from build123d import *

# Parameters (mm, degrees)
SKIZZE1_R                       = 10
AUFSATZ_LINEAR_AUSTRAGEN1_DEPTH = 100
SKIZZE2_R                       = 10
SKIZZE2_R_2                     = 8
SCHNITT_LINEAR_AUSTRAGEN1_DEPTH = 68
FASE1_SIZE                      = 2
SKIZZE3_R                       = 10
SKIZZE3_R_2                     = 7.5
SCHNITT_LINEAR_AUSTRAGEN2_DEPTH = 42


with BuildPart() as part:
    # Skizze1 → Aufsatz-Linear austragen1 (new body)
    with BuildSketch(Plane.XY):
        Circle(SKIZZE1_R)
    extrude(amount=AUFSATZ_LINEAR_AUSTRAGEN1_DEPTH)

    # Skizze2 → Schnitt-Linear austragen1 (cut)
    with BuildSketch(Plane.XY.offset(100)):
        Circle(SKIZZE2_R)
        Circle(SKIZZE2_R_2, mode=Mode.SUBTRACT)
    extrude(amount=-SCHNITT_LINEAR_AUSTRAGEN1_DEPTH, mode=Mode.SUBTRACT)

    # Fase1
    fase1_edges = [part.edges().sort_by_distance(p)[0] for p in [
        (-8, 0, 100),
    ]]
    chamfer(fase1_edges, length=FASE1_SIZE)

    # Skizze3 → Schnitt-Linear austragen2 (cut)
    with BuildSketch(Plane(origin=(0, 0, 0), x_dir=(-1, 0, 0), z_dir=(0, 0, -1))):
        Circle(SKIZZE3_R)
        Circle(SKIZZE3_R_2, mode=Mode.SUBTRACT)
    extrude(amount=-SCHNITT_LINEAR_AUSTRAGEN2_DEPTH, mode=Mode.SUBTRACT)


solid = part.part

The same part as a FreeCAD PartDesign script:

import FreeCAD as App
import Part
import Sketcher

V = App.Vector


def edges_at(feature, points):
    """Names of the edges that pass closest to the given points."""
    edges = feature.Shape.Edges
    near = lambda p: min(range(len(edges)), key=lambda i: edges[i].distToShape(Part.Vertex(*p))[0])
    return sorted({f"Edge{near(p) + 1}" for p in points})

doc = App.newDocument("Part")
params = doc.addObject("Spreadsheet::Sheet", "Params")
for row, (alias, value) in enumerate([
    ("sketch1_diameter", "20 mm"),
    ("pad1_length", "100 mm"),
    ("sketch2_diameter", "20 mm"),
    ("sketch2_diameter2", "16 mm"),
    ("pocket1_length", "68 mm"),
    ("chamfer_size", "2 mm"),
    ("sketch3_diameter", "20 mm"),
    ("sketch3_diameter2", "15 mm"),
    ("pocket2_length", "42 mm"),
], start=1):
    params.set(f"A{row}", alias)
    params.set(f"B{row}", "=" + value)
    params.setAlias(f"B{row}", alias)

body = doc.addObject("PartDesign::Body", "Body")

sketch1 = body.newObject("Sketcher::SketchObject", "Sketch")
sketch1.AttachmentSupport = (doc.getObject("XY_Plane"), [""])
sketch1.MapMode = "FlatFace"
sketch1.addGeometry(Part.Circle(V(0, 0, 0), V(0, 0, 1), 10), False)
sketch1.addConstraint(Sketcher.Constraint("Coincident", 0, 3, -1, 1))
sketch1.addConstraint(Sketcher.Constraint("Diameter", 0, 20.0))
sketch1.setExpression("Constraints[1]", "Params.sketch1_diameter")
pad1 = body.newObject("PartDesign::Pad", "Pad")
pad1.Profile = sketch1
pad1.setExpression("Length", "Params.pad1_length")

sketch2 = body.newObject("Sketcher::SketchObject", "Sketch001")
sketch2.AttachmentSupport = (doc.getObject("XY_Plane"), [""])
sketch2.MapMode = "FlatFace"
sketch2.AttachmentOffset = App.Placement(V(0, 0, 100), App.Rotation())
sketch2.addGeometry(Part.Circle(V(0, 0, 0), V(0, 0, 1), 10), False)
sketch2.addGeometry(Part.Circle(V(0, 0, 0), V(0, 0, 1), 8), False)
sketch2.addConstraint(Sketcher.Constraint("Coincident", 0, 3, -1, 1))
sketch2.addConstraint(Sketcher.Constraint("Coincident", 1, 3, -1, 1))
sketch2.addConstraint(Sketcher.Constraint("Diameter", 0, 20.0))
sketch2.addConstraint(Sketcher.Constraint("Diameter", 1, 16.0))
sketch2.setExpression("Constraints[2]", "Params.sketch2_diameter")
sketch2.setExpression("Constraints[3]", "Params.sketch2_diameter2")
pocket1 = body.newObject("PartDesign::Pocket", "Pocket")
pocket1.Profile = sketch2
pocket1.setExpression("Length", "Params.pocket1_length")
doc.recompute()

chamfer = body.newObject("PartDesign::Chamfer", "Chamfer")
chamfer.Base = (pocket1, edges_at(pocket1, [(-8, 0, 100)]))
chamfer.setExpression("Size", "Params.chamfer_size")

sketch3 = body.newObject("Sketcher::SketchObject", "Sketch002")
sketch3.AttachmentSupport = (doc.getObject("XY_Plane"), [""])
sketch3.MapMode = "FlatFace"
sketch3.addGeometry(Part.Circle(V(0, 0, 0), V(0, 0, 1), 10), False)
sketch3.addGeometry(Part.Circle(V(0, 0, 0), V(0, 0, 1), 8), False)
sketch3.addConstraint(Sketcher.Constraint("Coincident", 0, 3, -1, 1))
sketch3.addConstraint(Sketcher.Constraint("Coincident", 1, 3, -1, 1))
sketch3.addConstraint(Sketcher.Constraint("Diameter", 0, 20.0))
sketch3.addConstraint(Sketcher.Constraint("Diameter", 1, 15.0))
sketch3.setExpression("Constraints[2]", "Params.sketch3_diameter")
sketch3.setExpression("Constraints[3]", "Params.sketch3_diameter2")
pocket2 = body.newObject("PartDesign::Pocket", "Pocket001")
pocket2.Profile = sketch3
pocket2.setExpression("Length", "Params.pocket2_length")
pocket2.Reversed = True

doc.recompute()
